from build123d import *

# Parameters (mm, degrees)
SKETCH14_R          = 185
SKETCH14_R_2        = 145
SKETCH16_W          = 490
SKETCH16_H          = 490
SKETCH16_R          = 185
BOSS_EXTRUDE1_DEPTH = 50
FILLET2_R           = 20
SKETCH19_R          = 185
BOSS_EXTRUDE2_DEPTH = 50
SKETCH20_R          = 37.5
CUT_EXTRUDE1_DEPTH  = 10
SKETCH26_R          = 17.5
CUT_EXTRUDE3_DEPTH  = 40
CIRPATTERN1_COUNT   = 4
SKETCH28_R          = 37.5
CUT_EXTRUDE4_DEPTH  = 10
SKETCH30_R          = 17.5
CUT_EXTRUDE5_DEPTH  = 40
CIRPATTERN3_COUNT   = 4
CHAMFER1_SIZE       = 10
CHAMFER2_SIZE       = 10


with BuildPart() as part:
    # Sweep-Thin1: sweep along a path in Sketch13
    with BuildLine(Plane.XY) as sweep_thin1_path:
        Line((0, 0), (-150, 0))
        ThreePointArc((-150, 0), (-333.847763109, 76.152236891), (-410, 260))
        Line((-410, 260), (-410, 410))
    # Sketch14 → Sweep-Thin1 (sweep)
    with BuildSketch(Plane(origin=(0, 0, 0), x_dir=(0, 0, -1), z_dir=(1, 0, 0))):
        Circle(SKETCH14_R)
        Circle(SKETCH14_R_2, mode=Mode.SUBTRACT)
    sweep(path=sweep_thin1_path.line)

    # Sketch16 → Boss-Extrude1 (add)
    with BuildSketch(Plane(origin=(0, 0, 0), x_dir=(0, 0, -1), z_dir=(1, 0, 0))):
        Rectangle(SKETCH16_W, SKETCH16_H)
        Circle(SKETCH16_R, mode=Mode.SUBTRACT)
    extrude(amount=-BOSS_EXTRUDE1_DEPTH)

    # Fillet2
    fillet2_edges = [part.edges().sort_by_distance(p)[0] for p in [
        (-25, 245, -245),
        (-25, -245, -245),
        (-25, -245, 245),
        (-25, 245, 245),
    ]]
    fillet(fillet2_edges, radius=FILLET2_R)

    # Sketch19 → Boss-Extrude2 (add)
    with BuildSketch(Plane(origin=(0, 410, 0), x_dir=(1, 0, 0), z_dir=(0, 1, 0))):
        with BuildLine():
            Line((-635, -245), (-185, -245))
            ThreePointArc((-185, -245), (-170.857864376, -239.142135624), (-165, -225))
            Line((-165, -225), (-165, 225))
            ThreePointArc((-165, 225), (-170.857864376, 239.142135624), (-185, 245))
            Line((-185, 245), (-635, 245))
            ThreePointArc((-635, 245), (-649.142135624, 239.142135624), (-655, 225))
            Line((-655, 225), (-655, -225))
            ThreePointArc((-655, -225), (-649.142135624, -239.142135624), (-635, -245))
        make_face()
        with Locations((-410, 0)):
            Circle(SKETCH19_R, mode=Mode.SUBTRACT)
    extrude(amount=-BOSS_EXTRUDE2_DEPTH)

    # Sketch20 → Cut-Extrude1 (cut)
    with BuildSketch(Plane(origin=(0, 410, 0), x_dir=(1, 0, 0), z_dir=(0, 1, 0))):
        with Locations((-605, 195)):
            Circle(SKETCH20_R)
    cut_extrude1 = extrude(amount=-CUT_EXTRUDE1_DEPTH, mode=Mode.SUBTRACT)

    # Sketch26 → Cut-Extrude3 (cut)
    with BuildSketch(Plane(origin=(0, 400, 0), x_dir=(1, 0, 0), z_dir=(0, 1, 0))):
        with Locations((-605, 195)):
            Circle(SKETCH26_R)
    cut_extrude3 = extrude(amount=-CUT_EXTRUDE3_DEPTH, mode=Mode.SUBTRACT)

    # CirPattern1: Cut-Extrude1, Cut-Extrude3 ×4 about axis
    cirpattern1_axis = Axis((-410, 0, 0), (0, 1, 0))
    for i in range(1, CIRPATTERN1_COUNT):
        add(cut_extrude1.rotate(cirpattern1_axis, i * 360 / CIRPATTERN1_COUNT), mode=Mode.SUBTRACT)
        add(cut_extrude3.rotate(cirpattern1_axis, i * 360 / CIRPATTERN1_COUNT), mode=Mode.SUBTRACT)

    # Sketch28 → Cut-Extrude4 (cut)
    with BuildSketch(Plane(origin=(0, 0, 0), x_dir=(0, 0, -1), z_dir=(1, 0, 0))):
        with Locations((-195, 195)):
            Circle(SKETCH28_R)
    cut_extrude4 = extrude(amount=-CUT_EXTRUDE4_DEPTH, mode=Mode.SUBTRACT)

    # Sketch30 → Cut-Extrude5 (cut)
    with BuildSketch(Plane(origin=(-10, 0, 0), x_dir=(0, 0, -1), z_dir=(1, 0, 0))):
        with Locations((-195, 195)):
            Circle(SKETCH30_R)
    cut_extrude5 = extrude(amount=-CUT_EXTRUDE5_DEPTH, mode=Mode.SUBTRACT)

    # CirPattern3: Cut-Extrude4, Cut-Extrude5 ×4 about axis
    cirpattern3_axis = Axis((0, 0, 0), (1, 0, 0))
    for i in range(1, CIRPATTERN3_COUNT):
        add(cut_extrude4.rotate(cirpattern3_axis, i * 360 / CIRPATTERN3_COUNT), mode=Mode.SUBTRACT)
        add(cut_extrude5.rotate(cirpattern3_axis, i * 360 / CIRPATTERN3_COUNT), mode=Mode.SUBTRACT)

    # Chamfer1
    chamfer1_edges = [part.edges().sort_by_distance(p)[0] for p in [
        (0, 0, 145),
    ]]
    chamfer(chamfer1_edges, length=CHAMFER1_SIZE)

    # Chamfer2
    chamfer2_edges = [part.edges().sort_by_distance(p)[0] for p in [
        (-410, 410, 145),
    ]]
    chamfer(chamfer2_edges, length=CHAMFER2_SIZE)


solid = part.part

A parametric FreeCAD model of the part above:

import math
import FreeCAD as App
import Part
import Sketcher


def edges_at(feature, points):
    """Names of the edges that pass closest to the given points."""
    edges = feature.Shape.Edges
    near = lambda p: min(range(len(edges)), key=lambda i: edges[i].distToShape(Part.Vertex(*p))[0])
    return sorted({f"Edge{near(p) + 1}" for p in points})

doc = App.newDocument("Part")
body = doc.addObject("PartDesign::Body", "Body")

# Sketch on YZ plane
sketch1 = body.newObject("Sketcher::SketchObject", "Sketch")
sketch1.AttachmentSupport = (doc.getObject("YZ_Plane"), [""])
sketch1.MapMode = "FlatFace"
sketch1.addGeometry([
    Part.Circle(App.Vector(0, 0, 0), App.Vector(0, 0, 1), 185),
    Part.Circle(App.Vector(0, 0, 0), App.Vector(0, 0, 1), 145),
], False)
sketch1.addConstraint([
    Sketcher.Constraint("Coincident", 0, 3, -1, 1),
    Sketcher.Constraint("Coincident", 1, 3, -1, 1),
    Sketcher.Constraint("Diameter", 0, 370.0),
    Sketcher.Constraint("Diameter", 1, 290.0),
])

# Sketch on XY plane
sketch2 = body.newObject("Sketcher::SketchObject", "Sketch001")
sketch2.AttachmentSupport = (doc.getObject("XY_Plane"), [""])
sketch2.MapMode = "FlatFace"
sketch2.addGeometry([
    Part.LineSegment(App.Vector(0, 0, 0), App.Vector(-150, 0, 0)),
    Part.ArcOfCircle(Part.Circle(App.Vector(-150, 260, 0), App.Vector(0, 0, 1), 260), math.radians(180), math.radians(270)),
    Part.LineSegment(App.Vector(-410, 260, 0), App.Vector(-410, 410, 0)),
], False)
sketch2.addConstraint([
    Sketcher.Constraint("Tangent", 0, 2, 1, 2),
    Sketcher.Constraint("Tangent", 1, 1, 2, 1),
    Sketcher.Constraint("Horizontal", 0),
    Sketcher.Constraint("Vertical", 2),
    Sketcher.Constraint("Coincident", 0, 1, -1, 1),
    Sketcher.Constraint("Equal", 0, 2),
    Sketcher.Constraint("Radius", 1, 260.0),
    Sketcher.Constraint("DistanceX", 0, 2, 0, 1, 150.0),
])
doc.recompute()

additivepipe = body.newObject("PartDesign::AdditivePipe", "AdditivePipe")
additivepipe.Profile = sketch1
additivepipe.Spine = (sketch2, ["Edge1", "Edge2", "Edge3"])

# Sketch on YZ plane
sketch3 = body.newObject("Sketcher::SketchObject", "Sketch002")
sketch3.AttachmentSupport = (doc.getObject("YZ_Plane"), [""])
sketch3.MapMode = "FlatFace"
sketch3.addGeometry([
    Part.LineSegment(App.Vector(245, 245, 0), App.Vector(-245, 245, 0)),  # 0
    Part.LineSegment(App.Vector(-245, 245, 0), App.Vector(-245, -245, 0)),  # 1
    Part.LineSegment(App.Vector(-245, -245, 0), App.Vector(245, -245, 0)),  # 2
    Part.LineSegment(App.Vector(245, -245, 0), App.Vector(245, 245, 0)),  # 3
    Part.Circle(App.Vector(0, 0, 0), App.Vector(0, 0, 1), 185),  # 4
], False)
sketch3.addConstraint([
    Sketcher.Constraint("Coincident", 0, 2, 1, 1),
    Sketcher.Constraint("Coincident", 1, 2, 2, 1),
    Sketcher.Constraint("Coincident", 2, 2, 3, 1),
    Sketcher.Constraint("Coincident", 3, 2, 0, 1),
    Sketcher.Constraint("Horizontal", 0),
    Sketcher.Constraint("Vertical", 1),
    Sketcher.Constraint("Horizontal", 2),
    Sketcher.Constraint("Vertical", 3),
    Sketcher.Constraint("Coincident", 4, 3, -1, 1),
    Sketcher.Constraint("Symmetric", 0, 2, 2, 2, -1, 1),
    Sketcher.Constraint("Equal", 2, 1),
    Sketcher.Constraint("Diameter", 4, 370.0),
    Sketcher.Constraint("DistanceX", 0, 2, 0, 1, 490.0),
])
pad1 = body.newObject("PartDesign::Pad", "Pad")
pad1.Profile = sketch3
pad1.Length = 50
pad1.Reversed = True
doc.recompute()

fillet = body.newObject("PartDesign::Fillet", "Fillet")
fillet.Base = (pad1, edges_at(pad1, [
    (-25, 245, -245),
    (-25, -245, -245),
    (-25, -245, 245),
    (-25, 245, 245),
]))
fillet.Radius = 20

# Sketch on XZ plane
sketch4 = body.newObject("Sketcher::SketchObject", "Sketch003")
sketch4.AttachmentSupport = (doc.getObject("XZ_Plane"), [""])
sketch4.MapMode = "FlatFace"
sketch4.AttachmentOffset = App.Placement(App.Vector(0, 0, -410), App.Rotation())
sketch4.addGeometry([
    Part.LineSegment(App.Vector(-635, 245, 0), App.Vector(-185, 245, 0)),  # 0
    Part.ArcOfCircle(Part.Circle(App.Vector(-185, 225, 0), App.Vector(0, 0, 1), 20), math.radians(0), math.radians(90)),  # 1
    Part.LineSegment(App.Vector(-165, 225, 0), App.Vector(-165, -225, 0)),  # 2
    Part.ArcOfCircle(Part.Circle(App.Vector(-185, -225, 0), App.Vector(0, 0, 1), 20), math.radians(-90), math.radians(0)),  # 3
    Part.LineSegment(App.Vector(-185, -245, 0), App.Vector(-635, -245, 0)),  # 4
    Part.ArcOfCircle(Part.Circle(App.Vector(-635, -225, 0), App.Vector(0, 0, 1), 20), math.radians(180), math.radians(270)),  # 5
    Part.LineSegment(App.Vector(-655, -225, 0), App.Vector(-655, 225, 0)),  # 6
    Part.ArcOfCircle(Part.Circle(App.Vector(-635, 225, 0), App.Vector(0, 0, 1), 20), math.radians(90), math.radians(180)),  # 7
    Part.Circle(App.Vector(-410, 0, 0), App.Vector(0, 0, 1), 185),  # 8
], False)
sketch4.addConstraint([
    Sketcher.Constraint("Tangent", 0, 2, 1, 2),
    Sketcher.Constraint("Tangent", 1, 1, 2, 1),
    Sketcher.Constraint("Tangent", 2, 2, 3, 2),
    Sketcher.Constraint("Tangent", 3, 1, 4, 1),
    Sketcher.Constraint("Tangent", 4, 2, 5, 2),
    Sketcher.Constraint("Tangent", 5, 1, 6, 1),
    Sketcher.Constraint("Tangent", 6, 2, 7, 2),
    Sketcher.Constraint("Tangent", 7, 1, 0, 1),
    Sketcher.Constraint("Horizontal", 0),
    Sketcher.Constraint("Vertical", 2),
    Sketcher.Constraint("Horizontal", 4),
    Sketcher.Constraint("Vertical", 6),
    Sketcher.Constraint("Equal", 1, 3),
    Sketcher.Constraint("Equal", 3, 5),
    Sketcher.Constraint("Equal", 5, 7),
    Sketcher.Constraint("PointOnObject", 8, 3, -1),
    Sketcher.Constraint("Equal", 4, 2),
    Sketcher.Constraint("Diameter", 8, 370.0),
    Sketcher.Constraint("Radius", 1, 20.0),
    Sketcher.Constraint("DistanceX", 0, 1, 0, 2, 450.0),
    Sketcher.Constraint("DistanceX", 1, 3, -1, 1, 185.0),
    Sketcher.Constraint("DistanceY", -1, 1, 1, 3, 225.0),
    Sketcher.Constraint("DistanceX", 8, 3, -1, 1, 410.0),
])
pad2 = body.newObject("PartDesign::Pad", "Pad001")
pad2.Profile = sketch4
pad2.Length = 50

# Sketch on XZ plane
sketch5 = body.newObject("Sketcher::SketchObject", "Sketch004")
sketch5.AttachmentSupport = (doc.getObject("XZ_Plane"), [""])
sketch5.MapMode = "FlatFace"
sketch5.AttachmentOffset = App.Placement(App.Vector(0, 0, -410), App.Rotation())
sketch5.addGeometry(Part.Circle(App.Vector(-605, -195, 0), App.Vector(0, 0, 1), 38), False)
sketch5.addConstraint([
    Sketcher.Constraint("Diameter", 0, 75.0),
    Sketcher.Constraint("DistanceX", 0, 3, -1, 1, 605.0),
    Sketcher.Constraint("DistanceY", 0, 3, -1, 1, 195.0),
])
pocket1 = body.newObject("PartDesign::Pocket", "Pocket")
pocket1.Profile = sketch5
pocket1.Length = 10
pocket1.Reversed = True

# Sketch on XZ plane
sketch6 = body.newObject("Sketcher::SketchObject", "Sketch005")
sketch6.AttachmentSupport = (doc.getObject("XZ_Plane"), [""])
sketch6.MapMode = "FlatFace"
sketch6.AttachmentOffset = App.Placement(App.Vector(0, 0, -400), App.Rotation())
sketch6.addGeometry(Part.Circle(App.Vector(-605, -195, 0), App.Vector(0, 0, 1), 18), False)
sketch6.addConstraint([
    Sketcher.Constraint("Diameter", 0, 35.0),
    Sketcher.Constraint("DistanceX", 0, 3, -1, 1, 605.0),
    Sketcher.Constraint("DistanceY", 0, 3, -1, 1, 195.0),
])
pocket2 = body.newObject("PartDesign::Pocket", "Pocket001")
pocket2.Profile = sketch6
pocket2.Length = 40
pocket2.Reversed = True
doc.recompute()

datumline = body.newObject("PartDesign::Line", "DatumLine")
datumline.Placement = App.Placement(App.Vector(-410, 0, 0), App.Rotation(App.Vector(0, 0, 1), App.Vector(0, 1, 0)))
polarpattern = body.newObject("PartDesign::PolarPattern", "PolarPattern")
polarpattern.Originals = [pocket1, pocket2]
polarpattern.Axis = (datumline, [""])
polarpattern.Angle = 360
polarpattern.Occurrences = 4
body.Tip = polarpattern

# Sketch on YZ plane
sketch7 = body.newObject("Sketcher::SketchObject", "Sketch006")
sketch7.AttachmentSupport = (doc.getObject("YZ_Plane"), [""])
sketch7.MapMode = "FlatFace"
sketch7.addGeometry(Part.Circle(App.Vector(195, 195, 0), App.Vector(0, 0, 1), 38), False)
sketch7.addConstraint([
    Sketcher.Constraint("Diameter", 0, 75.0),
    Sketcher.Constraint("DistanceX", -1, 1, 0, 3, 195.0),
    Sketcher.Constraint("DistanceY", -1, 1, 0, 3, 195.0),
])
pocket3 = body.newObject("PartDesign::Pocket", "Pocket002")
pocket3.Profile = sketch7
pocket3.Length = 10

# Sketch on YZ plane
sketch8 = body.newObject("Sketcher::SketchObject", "Sketch007")
sketch8.AttachmentSupport = (doc.getObject("YZ_Plane"), [""])
sketch8.MapMode = "FlatFace"
sketch8.AttachmentOffset = App.Placement(App.Vector(0, 0, -10), App.Rotation())
sketch8.addGeometry(Part.Circle(App.Vector(195, 195, 0), App.Vector(0, 0, 1), 18), False)
sketch8.addConstraint([
    Sketcher.Constraint("Diameter", 0, 35.0),
    Sketcher.Constraint("DistanceX", -1, 1, 0, 3, 195.0),
    Sketcher.Constraint("DistanceY", -1, 1, 0, 3, 195.0),
])
pocket4 = body.newObject("PartDesign::Pocket", "Pocket003")
pocket4.Profile = sketch8
pocket4.Length = 40
doc.recompute()

polarpattern2 = body.newObject("PartDesign::PolarPattern", "PolarPattern001")
polarpattern2.Originals = [pocket3, pocket4]
polarpattern2.Axis = (doc.getObject("X_Axis"), [""])
polarpattern2.Angle = 360
polarpattern2.Occurrences = 4
body.Tip = polarpattern2
doc.recompute()

chamfer = body.newObject("PartDesign::Chamfer", "Chamfer")
chamfer.Base = (polarpattern2, edges_at(polarpattern2, [(0, 0, 145)]))
chamfer.Size = 10
doc.recompute()

chamfer2 = body.newObject("PartDesign::Chamfer", "Chamfer001")
chamfer2.Base = (chamfer, edges_at(chamfer, [(-410, 410, 145)]))
chamfer2.Size = 10

doc.recompute()
